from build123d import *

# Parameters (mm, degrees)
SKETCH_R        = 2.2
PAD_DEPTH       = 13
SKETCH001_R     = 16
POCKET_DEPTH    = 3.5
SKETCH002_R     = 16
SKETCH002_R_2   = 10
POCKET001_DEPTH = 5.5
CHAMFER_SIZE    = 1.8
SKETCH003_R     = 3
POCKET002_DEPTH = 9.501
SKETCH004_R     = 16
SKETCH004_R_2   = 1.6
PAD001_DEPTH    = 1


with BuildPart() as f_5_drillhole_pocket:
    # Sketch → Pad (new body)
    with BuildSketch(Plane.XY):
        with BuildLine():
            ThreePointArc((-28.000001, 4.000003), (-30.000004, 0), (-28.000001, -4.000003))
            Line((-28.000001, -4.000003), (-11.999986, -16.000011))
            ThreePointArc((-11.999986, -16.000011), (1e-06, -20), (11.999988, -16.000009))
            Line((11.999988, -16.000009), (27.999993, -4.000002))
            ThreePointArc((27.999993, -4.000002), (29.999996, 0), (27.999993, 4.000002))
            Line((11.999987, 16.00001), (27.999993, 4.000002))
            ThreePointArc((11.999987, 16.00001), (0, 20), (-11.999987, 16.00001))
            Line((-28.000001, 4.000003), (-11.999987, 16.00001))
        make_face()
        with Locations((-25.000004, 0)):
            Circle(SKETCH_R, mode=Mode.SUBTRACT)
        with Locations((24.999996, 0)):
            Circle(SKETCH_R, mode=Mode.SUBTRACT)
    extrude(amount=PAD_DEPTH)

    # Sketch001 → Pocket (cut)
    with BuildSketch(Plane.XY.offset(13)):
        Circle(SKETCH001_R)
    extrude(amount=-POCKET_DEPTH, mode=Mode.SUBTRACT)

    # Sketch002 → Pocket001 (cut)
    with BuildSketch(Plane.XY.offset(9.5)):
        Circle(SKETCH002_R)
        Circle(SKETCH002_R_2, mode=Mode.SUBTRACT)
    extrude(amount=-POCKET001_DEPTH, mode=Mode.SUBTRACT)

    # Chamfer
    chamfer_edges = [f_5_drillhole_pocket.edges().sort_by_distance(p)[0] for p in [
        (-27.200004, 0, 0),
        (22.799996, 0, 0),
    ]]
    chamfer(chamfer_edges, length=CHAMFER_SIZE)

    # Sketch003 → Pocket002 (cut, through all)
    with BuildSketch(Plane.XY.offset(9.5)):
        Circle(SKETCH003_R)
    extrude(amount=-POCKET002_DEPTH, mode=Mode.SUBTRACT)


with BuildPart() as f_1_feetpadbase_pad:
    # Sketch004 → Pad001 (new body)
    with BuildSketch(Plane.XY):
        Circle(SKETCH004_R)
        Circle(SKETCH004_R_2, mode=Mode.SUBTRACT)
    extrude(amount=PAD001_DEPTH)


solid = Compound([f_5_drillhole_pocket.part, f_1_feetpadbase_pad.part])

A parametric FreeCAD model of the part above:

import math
import FreeCAD as App
import Part
import Sketcher


def edges_at(feature, points):
    """Names of the edges that pass closest to the given points."""
    edges = feature.Shape.Edges
    near = lambda p: min(range(len(edges)), key=lambda i: edges[i].distToShape(Part.Vertex(*p))[0])
    return sorted({f"Edge{near(p) + 1}" for p in points})

doc = App.newDocument("Part")
body = doc.addObject("PartDesign::Body", "Body")

sketch1 = body.newObject("Sketcher::SketchObject", "Sketch")
sketch1.AttachmentSupport = (doc.getObject("XY_Plane"), [""])
sketch1.MapMode = "FlatFace"
sketch1.addGeometry([
    Part.ArcOfCircle(Part.Circle(App.Vector(-25.000003, 0, 0), App.Vector(0, 0, 1), 5.000001), math.radians(126.869863), math.radians(233.130137)),
    Part.LineSegment(App.Vector(-28.000001, -4.000003, 0), App.Vector(-11.999986, -16.000011, 0)),
    Part.ArcOfCircle(Part.Circle(App.Vector(0, 0.000001, 0), App.Vector(0, 0, 1), 20.000001), math.radians(-126.869844), math.radians(-53.130146)),
    Part.LineSegment(App.Vector(11.999988, -16.000009, 0), App.Vector(27.999993, -4.000002, 0)),
    Part.ArcOfCircle(Part.Circle(App.Vector(24.999997, 0, 0), App.Vector(0, 0, 1), 5), math.radians(-53.130148), math.radians(53.130148)),
    Part.LineSegment(App.Vector(27.999993, 4.000002, 0), App.Vector(11.999987, 16.00001, 0)),
    Part.ArcOfCircle(Part.Circle(App.Vector(0, -0.000001, 0), App.Vector(0, 0, 1), 20.000001), math.radians(53.130151), math.radians(126.869849)),
    Part.LineSegment(App.Vector(-11.999987, 16.00001, 0), App.Vector(-28.000001, 4.000003, 0)),
    Part.Circle(App.Vector(-25.000004, 0, 0), App.Vector(0, 0, 1), 2.2),
    Part.Circle(App.Vector(24.999996, 0, 0), App.Vector(0, 0, 1), 2.2),
], False)
sketch1.addConstraint([
    Sketcher.Constraint("Tangent", 0, 2, 1, 1),
    Sketcher.Constraint("Tangent", 1, 2, 2, 1),
    Sketcher.Constraint("Tangent", 2, 2, 3, 1),
    Sketcher.Constraint("Tangent", 3, 2, 4, 1),
    Sketcher.Constraint("Tangent", 4, 2, 5, 1),
    Sketcher.Constraint("Tangent", 5, 2, 6, 1),
    Sketcher.Constraint("Tangent", 6, 2, 7, 1),
    Sketcher.Constraint("Tangent", 7, 2, 0, 1),
    Sketcher.Constraint("Coincident", 2, 3, -1, 1),
    Sketcher.Constraint("Coincident", 6, 3, -1, 1),
    Sketcher.Constraint("Coincident", 8, 3, 0, 3),
    Sketcher.Constraint("Coincident", 9, 3, 4, 3),
    Sketcher.Constraint("Equal", 0, 4),
    Sketcher.Constraint("Equal", 2, 6),
    Sketcher.Constraint("Equal", 8, 9),
    Sketcher.Constraint("Symmetric", 0, 3, 4, 3, -1, 1),
    Sketcher.Constraint("PointOnObject", 0, 3, -1),
    Sketcher.Constraint("Radius", 0, 5.000001),
    Sketcher.Constraint("Radius", 2, 20.000001),
    Sketcher.Constraint("Diameter", 8, 4.4),
    Sketcher.Constraint("DistanceX", 0, 2, -1, 1, 28.000001),
])
pad1 = body.newObject("PartDesign::Pad", "Pad")
pad1.Profile = sketch1
pad1.Length = 13

sketch2 = body.newObject("Sketcher::SketchObject", "Sketch001")
sketch2.AttachmentSupport = (doc.getObject("XY_Plane"), [""])
sketch2.MapMode = "FlatFace"
sketch2.AttachmentOffset = App.Placement(App.Vector(0, 0, 13), App.Rotation())
sketch2.addGeometry(Part.Circle(App.Vector(0, 0, 0), App.Vector(0, 0, 1), 16), False)
sketch2.addConstraint([
    Sketcher.Constraint("Coincident", 0, 3, -1, 1),
    Sketcher.Constraint("Diameter", 0, 32.0),
])
pocket1 = body.newObject("PartDesign::Pocket", "Pocket")
pocket1.Profile = sketch2
pocket1.Length = 3.5

sketch3 = body.newObject("Sketcher::SketchObject", "Sketch002")
sketch3.AttachmentSupport = (doc.getObject("XY_Plane"), [""])
sketch3.MapMode = "FlatFace"
sketch3.AttachmentOffset = App.Placement(App.Vector(0, 0, 9.5), App.Rotation())
sketch3.addGeometry([
    Part.Circle(App.Vector(0, 0, 0), App.Vector(0, 0, 1), 16),
    Part.Circle(App.Vector(0, 0, 0), App.Vector(0, 0, 1), 10),
], False)
sketch3.addConstraint([
    Sketcher.Constraint("Coincident", 0, 3, -1, 1),
    Sketcher.Constraint("Coincident", 1, 3, -1, 1),
    Sketcher.Constraint("Diameter", 0, 32.0),
    Sketcher.Constraint("Diameter", 1, 20.0),
])
pocket2 = body.newObject("PartDesign::Pocket", "Pocket001")
pocket2.Profile = sketch3
pocket2.Length = 5.5
doc.recompute()

chamfer = body.newObject("PartDesign::Chamfer", "Chamfer")
chamfer.Base = (pocket2, edges_at(pocket2, [(-27.2, 0, 0), (22.8, 0, 0)]))
chamfer.Size = 1.8

sketch4 = body.newObject("Sketcher::SketchObject", "Sketch003")
sketch4.AttachmentSupport = (doc.getObject("XY_Plane"), [""])
sketch4.MapMode = "FlatFace"
sketch4.AttachmentOffset = App.Placement(App.Vector(0, 0, 9.5), App.Rotation())
sketch4.addGeometry(Part.Circle(App.Vector(0, 0, 0), App.Vector(0, 0, 1), 3), False)
sketch4.addConstraint([
    Sketcher.Constraint("Coincident", 0, 3, -1, 1),
    Sketcher.Constraint("Diameter", 0, 6.0),
])
pocket3 = body.newObject("PartDesign::Pocket", "Pocket002")
pocket3.Profile = sketch4
pocket3.Type = "ThroughAll"
body2 = doc.addObject("PartDesign::Body", "Body001")

sketch5 = body2.newObject("Sketcher::SketchObject", "Sketch004")
sketch5.AttachmentSupport = (doc.getObject("XY_Plane001"), [""])
sketch5.MapMode = "FlatFace"
sketch5.addGeometry([
    Part.Circle(App.Vector(0, 0, 0), App.Vector(0, 0, 1), 16),
    Part.Circle(App.Vector(0, 0, 0), App.Vector(0, 0, 1), 1.6),
], False)
sketch5.addConstraint([
    Sketcher.Constraint("Coincident", 0, 3, -1, 1),
    Sketcher.Constraint("Coincident", 1, 3, -1, 1),
    Sketcher.Constraint("Diameter", 0, 32.0),
    Sketcher.Constraint("Diameter", 1, 3.2),
])
pad2 = body2.newObject("PartDesign::Pad", "Pad001")
pad2.Profile = sketch5
pad2.Length = 1

doc.recompute()
